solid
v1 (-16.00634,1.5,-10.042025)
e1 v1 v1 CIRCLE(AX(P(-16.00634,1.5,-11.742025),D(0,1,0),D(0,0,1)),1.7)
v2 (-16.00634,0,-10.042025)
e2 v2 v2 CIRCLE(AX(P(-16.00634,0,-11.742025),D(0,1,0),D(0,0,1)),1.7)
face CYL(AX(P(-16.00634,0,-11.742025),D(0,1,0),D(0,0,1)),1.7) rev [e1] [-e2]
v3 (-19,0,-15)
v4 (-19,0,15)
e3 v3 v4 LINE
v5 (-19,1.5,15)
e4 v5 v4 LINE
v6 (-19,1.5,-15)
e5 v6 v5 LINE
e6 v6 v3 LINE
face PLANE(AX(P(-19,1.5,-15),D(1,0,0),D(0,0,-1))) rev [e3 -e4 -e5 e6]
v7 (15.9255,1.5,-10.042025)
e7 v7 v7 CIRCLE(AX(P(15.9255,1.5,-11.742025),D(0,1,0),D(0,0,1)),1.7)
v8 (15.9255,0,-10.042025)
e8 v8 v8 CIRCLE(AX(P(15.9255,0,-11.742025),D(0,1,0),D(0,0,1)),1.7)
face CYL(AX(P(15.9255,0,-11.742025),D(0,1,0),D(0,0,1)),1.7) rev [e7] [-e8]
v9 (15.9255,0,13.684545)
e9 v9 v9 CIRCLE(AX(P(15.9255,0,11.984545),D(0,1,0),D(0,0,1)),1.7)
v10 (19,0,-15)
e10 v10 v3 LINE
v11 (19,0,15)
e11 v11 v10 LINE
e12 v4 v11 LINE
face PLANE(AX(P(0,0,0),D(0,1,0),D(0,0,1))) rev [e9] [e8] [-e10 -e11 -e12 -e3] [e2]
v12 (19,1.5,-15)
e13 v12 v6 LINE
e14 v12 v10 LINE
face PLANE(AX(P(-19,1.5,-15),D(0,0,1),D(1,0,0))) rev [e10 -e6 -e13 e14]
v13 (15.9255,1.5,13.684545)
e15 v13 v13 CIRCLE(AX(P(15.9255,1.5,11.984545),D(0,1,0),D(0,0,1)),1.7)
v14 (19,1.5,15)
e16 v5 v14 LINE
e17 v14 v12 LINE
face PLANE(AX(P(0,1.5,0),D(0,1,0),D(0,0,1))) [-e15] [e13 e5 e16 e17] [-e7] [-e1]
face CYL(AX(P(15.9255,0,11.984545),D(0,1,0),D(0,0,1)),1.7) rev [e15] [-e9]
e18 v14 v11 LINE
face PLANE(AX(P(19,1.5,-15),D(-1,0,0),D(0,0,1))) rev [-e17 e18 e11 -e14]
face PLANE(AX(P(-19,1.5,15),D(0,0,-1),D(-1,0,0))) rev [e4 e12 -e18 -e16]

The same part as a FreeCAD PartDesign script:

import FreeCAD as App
import Part
import Sketcher
from FreeCAD import Vector
Q = App.Units.Quantity

doc = App.newDocument("Part")
body = doc.addObject("PartDesign::Body", "Body")

# Sketch on XZ plane
sketch1 = doc.addObject("Sketcher::SketchObject", "Sketch")
body.addObject(sketch1)
sketch1.AttachmentSupport = (doc.XZ_Plane, [""])
sketch1.MapMode = "FlatFace"
sketch1.addGeometry(Part.LineSegment(Vector(-19, -15, 0), Vector(-19, 15, 0)), False)
sketch1.addGeometry(Part.LineSegment(Vector(-19, 15, 0), Vector(19, 15, 0)), False)
sketch1.addGeometry(Part.LineSegment(Vector(19, 15, 0), Vector(19, -15, 0)), False)
sketch1.addGeometry(Part.LineSegment(Vector(19, -15, 0), Vector(-19, -15, 0)), False)
sketch1.addConstraint(Sketcher.Constraint("Coincident", 0, 2, 1, 1))
sketch1.addConstraint(Sketcher.Constraint("Coincident", 1, 2, 2, 1))
sketch1.addConstraint(Sketcher.Constraint("Coincident", 2, 2, 3, 1))
sketch1.addConstraint(Sketcher.Constraint("Coincident", 3, 2, 0, 1))
sketch1.addConstraint(Sketcher.Constraint("Vertical", 0))
sketch1.addConstraint(Sketcher.Constraint("Horizontal", 1))
sketch1.addConstraint(Sketcher.Constraint("Vertical", 2))
sketch1.addConstraint(Sketcher.Constraint("Horizontal", 3))
sketch1.addConstraint(Sketcher.Constraint("Symmetric", 0, 2, 2, 2, -1, 1))
sketch1.addConstraint(Sketcher.Constraint("DistanceX", 1, 1, 1, 2, Q("38 mm")))
sketch1.addConstraint(Sketcher.Constraint("DistanceY", 0, 1, 0, 2, Q("30 mm")))
pad1 = doc.addObject("PartDesign::Pad", "Pad")
body.addObject(pad1)
pad1.Profile = sketch1
pad1.Length = 1.5
pad1.Reversed = True

# Sketch on XZ plane
sketch2 = doc.addObject("Sketcher::SketchObject", "Sketch001")
body.addObject(sketch2)
sketch2.AttachmentSupport = (doc.XZ_Plane, [""])
sketch2.MapMode = "FlatFace"
sketch2.AttachmentOffset = App.Placement(Vector(0, 0, -1.5), App.Rotation())
sketch2.addGeometry(Part.Circle(Vector(-16, -11.7, 0), Vector(0, 0, 1), 1.7), False)
sketch2.addGeometry(Part.Circle(Vector(15.9, -11.7, 0), Vector(0, 0, 1), 1.7), False)
sketch2.addGeometry(Part.Circle(Vector(15.9, 12, 0), Vector(0, 0, 1), 1.7), False)
sketch2.addConstraint(Sketcher.Constraint("Equal", 0, 1))
sketch2.addConstraint(Sketcher.Constraint("Equal", 1, 2))
sketch2.addConstraint(Sketcher.Constraint("Horizontal", 0, 3, 1, 3))
sketch2.addConstraint(Sketcher.Constraint("Vertical", 1, 3, 2, 3))
sketch2.addConstraint(Sketcher.Constraint("Diameter", 0, Q("3.4 mm")))
sketch2.addConstraint(Sketcher.Constraint("DistanceX", -1, 1, 1, 3, Q("15.9255 mm")))
sketch2.addConstraint(Sketcher.Constraint("DistanceX", 0, 3, -1, 1, Q("16.00634 mm")))
sketch2.addConstraint(Sketcher.Constraint("DistanceY", 1, 3, 2, 3, Q("23.72657 mm")))
sketch2.addConstraint(Sketcher.Constraint("DistanceY", 0, 3, -1, 1, Q("11.742025 mm")))
pocket1 = doc.addObject("PartDesign::Pocket", "Pocket")
body.addObject(pocket1)
pocket1.Profile = sketch2
pocket1.Type = "ThroughAll"
pocket1.Reversed = True

doc.recompute()
